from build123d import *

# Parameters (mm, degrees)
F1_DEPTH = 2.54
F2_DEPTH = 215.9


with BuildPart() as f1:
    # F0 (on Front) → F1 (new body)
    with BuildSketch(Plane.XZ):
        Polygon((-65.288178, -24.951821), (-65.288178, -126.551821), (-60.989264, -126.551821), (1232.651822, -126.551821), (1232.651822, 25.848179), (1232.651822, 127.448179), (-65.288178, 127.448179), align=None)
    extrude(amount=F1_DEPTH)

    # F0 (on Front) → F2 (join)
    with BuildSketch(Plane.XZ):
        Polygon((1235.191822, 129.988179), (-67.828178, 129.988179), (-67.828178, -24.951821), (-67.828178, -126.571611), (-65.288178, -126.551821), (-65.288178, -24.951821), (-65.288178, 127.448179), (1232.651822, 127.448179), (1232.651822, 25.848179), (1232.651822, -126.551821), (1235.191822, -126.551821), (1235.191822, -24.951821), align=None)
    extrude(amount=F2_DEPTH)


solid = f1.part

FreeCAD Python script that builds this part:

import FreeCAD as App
import Part
import Sketcher
Q = App.Units.Quantity


def add_polygon(sketch, points):
    """Adds a closed chain of lines whose ends are joined by coincident constraints."""
    first, n = sketch.GeometryCount, len(points)
    for a, b in zip(points, points[1:] + points[:1]):
        sketch.addGeometry(Part.LineSegment(App.Vector(*a, 0), App.Vector(*b, 0)), False)
    for i in range(n):
        sketch.addConstraint(Sketcher.Constraint("Coincident", first + i, 2, first + (i + 1) % n, 1))

doc = App.newDocument("Part")
body = doc.addObject("PartDesign::Body", "Body")

sketch1 = body.newObject("Sketcher::SketchObject", "Sketch")
sketch1.AttachmentSupport = (doc.getObject("XZ_Plane"), [""])
sketch1.MapMode = "FlatFace"
add_polygon(sketch1, [(-65.288178, -126.551821), (1232.651822, -126.551821), (1232.651822, 127.448179), (-65.288178, 127.448179)])
sketch1.addConstraint(Sketcher.Constraint("Horizontal", 0))
sketch1.addConstraint(Sketcher.Constraint("Vertical", 1))
sketch1.addConstraint(Sketcher.Constraint("Horizontal", 2))
sketch1.addConstraint(Sketcher.Constraint("Vertical", 3))
sketch1.addConstraint(Sketcher.Constraint("DistanceY", 1, 1, 1, 2, Q("10 in")))
sketch1.addConstraint(Sketcher.Constraint("DistanceX", 0, 1, 0, 2, Q("51.1 in")))
sketch1.addConstraint(Sketcher.Constraint("DistanceX", -1, 1, 0, 2, 1232.651822))
sketch1.addConstraint(Sketcher.Constraint("DistanceY", 0, 2, -1, 1, 126.551821))
pad1 = body.newObject("PartDesign::Pad", "Pad")
pad1.Profile = sketch1
pad1.Length = Q("0.1 in")

sketch2 = body.newObject("Sketcher::SketchObject", "Sketch001")
sketch2.AttachmentSupport = (doc.getObject("XZ_Plane"), [""])
sketch2.MapMode = "FlatFace"
add_polygon(sketch2, [(1235.191822, 129.988179), (-67.828178, 129.988179), (-67.828178, -126.571611), (-65.288178, -126.551821), (-65.288178, 127.448179), (1232.651822, 127.448179), (1232.651822, -126.551821), (1235.191822, -126.551821)])
sketch2.addConstraint(Sketcher.Constraint("Horizontal", 0))
sketch2.addConstraint(Sketcher.Constraint("Vertical", 1))
sketch2.addConstraint(Sketcher.Constraint("Vertical", 3))
sketch2.addConstraint(Sketcher.Constraint("Horizontal", 4))
sketch2.addConstraint(Sketcher.Constraint("Vertical", 5))
sketch2.addConstraint(Sketcher.Constraint("Horizontal", 6))
sketch2.addConstraint(Sketcher.Constraint("Vertical", 7))
sketch2.addConstraint(Sketcher.Constraint("Horizontal", 2, 2, 5, 2))
sketch2.addConstraint(Sketcher.Constraint("DistanceY", 3, 1, 3, 2, Q("10 in")))
sketch2.addConstraint(Sketcher.Constraint("DistanceX", 0, 2, 0, 1, Q("51.3 in")))
sketch2.addConstraint(Sketcher.Constraint("DistanceX", 4, 1, 4, 2, Q("51.1 in")))
sketch2.addConstraint(Sketcher.Constraint("DistanceX", 6, 1, 6, 2, Q("0.1 in")))
sketch2.addConstraint(Sketcher.Constraint("DistanceY", 7, 1, 7, 2, Q("10.1 in")))
sketch2.addConstraint(Sketcher.Constraint("DistanceY", 1, 2, 1, 1, 256.55979))
sketch2.addConstraint(Sketcher.Constraint("DistanceY", -1, 1, 0, 2, 129.988179))
sketch2.addConstraint(Sketcher.Constraint("DistanceX", 2, 2, -1, 1, 65.288178))
pad2 = body.newObject("PartDesign::Pad", "Pad001")
pad2.Profile = sketch2
pad2.Length = Q("8.5 in")

doc.recompute()
